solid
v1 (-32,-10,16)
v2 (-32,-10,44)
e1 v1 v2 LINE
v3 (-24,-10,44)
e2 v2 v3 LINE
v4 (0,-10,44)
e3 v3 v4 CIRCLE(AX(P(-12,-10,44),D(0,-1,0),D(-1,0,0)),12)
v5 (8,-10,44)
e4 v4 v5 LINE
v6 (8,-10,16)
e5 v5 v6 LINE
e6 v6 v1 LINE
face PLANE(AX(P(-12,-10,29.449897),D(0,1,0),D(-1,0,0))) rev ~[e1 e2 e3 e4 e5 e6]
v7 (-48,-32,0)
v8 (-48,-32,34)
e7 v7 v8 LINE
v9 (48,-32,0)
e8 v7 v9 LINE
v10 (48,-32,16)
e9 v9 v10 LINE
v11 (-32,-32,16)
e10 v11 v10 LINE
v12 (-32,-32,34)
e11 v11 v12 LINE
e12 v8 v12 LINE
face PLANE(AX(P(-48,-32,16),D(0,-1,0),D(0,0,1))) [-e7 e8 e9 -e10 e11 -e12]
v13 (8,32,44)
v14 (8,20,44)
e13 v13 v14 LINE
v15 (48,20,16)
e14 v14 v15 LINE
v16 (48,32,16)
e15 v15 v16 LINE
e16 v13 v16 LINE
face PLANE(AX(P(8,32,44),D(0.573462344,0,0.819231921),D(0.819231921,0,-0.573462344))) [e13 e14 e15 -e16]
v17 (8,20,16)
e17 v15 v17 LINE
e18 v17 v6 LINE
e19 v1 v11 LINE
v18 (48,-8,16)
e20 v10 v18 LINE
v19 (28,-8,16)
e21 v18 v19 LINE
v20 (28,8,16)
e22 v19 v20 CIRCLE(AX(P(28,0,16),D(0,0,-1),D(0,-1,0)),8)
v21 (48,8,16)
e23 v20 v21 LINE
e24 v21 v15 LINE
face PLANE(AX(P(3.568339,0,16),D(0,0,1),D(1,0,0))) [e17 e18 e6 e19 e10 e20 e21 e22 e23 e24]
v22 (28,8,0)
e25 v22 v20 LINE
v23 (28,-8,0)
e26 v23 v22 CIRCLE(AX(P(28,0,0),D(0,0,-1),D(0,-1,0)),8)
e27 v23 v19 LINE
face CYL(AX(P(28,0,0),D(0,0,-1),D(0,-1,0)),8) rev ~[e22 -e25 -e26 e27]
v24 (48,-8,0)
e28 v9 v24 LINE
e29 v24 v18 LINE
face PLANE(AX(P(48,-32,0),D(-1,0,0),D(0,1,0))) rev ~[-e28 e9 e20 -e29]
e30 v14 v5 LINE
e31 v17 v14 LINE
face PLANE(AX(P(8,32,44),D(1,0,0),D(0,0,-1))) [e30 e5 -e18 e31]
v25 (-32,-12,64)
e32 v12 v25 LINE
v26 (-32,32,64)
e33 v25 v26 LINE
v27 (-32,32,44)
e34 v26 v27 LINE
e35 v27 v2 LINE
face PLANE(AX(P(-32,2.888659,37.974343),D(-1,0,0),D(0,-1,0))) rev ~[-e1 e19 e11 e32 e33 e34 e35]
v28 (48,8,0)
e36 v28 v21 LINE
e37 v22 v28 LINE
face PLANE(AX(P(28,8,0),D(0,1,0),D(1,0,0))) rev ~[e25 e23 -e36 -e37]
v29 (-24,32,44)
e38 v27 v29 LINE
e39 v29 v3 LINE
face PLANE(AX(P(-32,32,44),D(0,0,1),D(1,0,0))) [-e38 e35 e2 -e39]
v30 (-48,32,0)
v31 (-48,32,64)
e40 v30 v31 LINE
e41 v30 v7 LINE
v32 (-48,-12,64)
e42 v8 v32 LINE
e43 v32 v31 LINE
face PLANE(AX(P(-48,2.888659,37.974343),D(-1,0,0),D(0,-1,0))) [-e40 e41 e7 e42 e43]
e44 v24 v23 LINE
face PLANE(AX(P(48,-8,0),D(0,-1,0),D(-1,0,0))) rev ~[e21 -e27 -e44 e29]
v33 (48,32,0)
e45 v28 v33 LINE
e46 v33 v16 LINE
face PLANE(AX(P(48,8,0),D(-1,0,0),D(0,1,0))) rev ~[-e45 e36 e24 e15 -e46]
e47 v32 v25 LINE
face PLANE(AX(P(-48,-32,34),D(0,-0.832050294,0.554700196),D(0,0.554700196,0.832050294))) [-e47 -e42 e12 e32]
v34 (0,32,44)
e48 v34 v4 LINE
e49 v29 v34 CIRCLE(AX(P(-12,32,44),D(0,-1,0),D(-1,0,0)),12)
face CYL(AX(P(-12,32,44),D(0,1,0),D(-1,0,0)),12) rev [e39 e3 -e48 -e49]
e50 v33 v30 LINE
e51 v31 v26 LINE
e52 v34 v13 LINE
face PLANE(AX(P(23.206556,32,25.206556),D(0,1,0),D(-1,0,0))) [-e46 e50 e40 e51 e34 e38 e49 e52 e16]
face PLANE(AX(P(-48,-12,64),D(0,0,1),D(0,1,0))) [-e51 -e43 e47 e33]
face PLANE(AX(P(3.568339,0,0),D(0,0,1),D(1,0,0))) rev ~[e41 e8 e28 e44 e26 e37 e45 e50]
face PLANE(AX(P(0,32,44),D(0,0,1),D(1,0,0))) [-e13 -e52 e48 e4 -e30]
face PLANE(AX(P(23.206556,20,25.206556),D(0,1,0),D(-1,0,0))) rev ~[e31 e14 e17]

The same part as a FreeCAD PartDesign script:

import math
import FreeCAD as App
import Part
import Sketcher

V = App.Vector
Q = App.Units.Quantity


def add_polygon(sketch, points):
    """Adds a closed chain of lines whose ends are joined by coincident constraints."""
    first, n = sketch.GeometryCount, len(points)
    for a, b in zip(points, points[1:] + points[:1]):
        sketch.addGeometry(Part.LineSegment(App.Vector(*a, 0), App.Vector(*b, 0)), False)
    for i in range(n):
        sketch.addConstraint(Sketcher.Constraint("Coincident", first + i, 2, first + (i + 1) % n, 1))

doc = App.newDocument("Part")
body = doc.addObject("PartDesign::Body", "Body")

sketch1 = doc.addObject("Sketcher::SketchObject", "Sketch")
body.addObject(sketch1)
sketch1.AttachmentSupport = (doc.XY_Plane, [""])
sketch1.MapMode = "FlatFace"
sketch1.addGeometry([
    Part.LineSegment(V(-48, 32, 0), V(-48, -32, 0)),
    Part.LineSegment(V(-48, -32, 0), V(48, -32, 0)),
    Part.LineSegment(V(48, -32, 0), V(48, -8, 0)),
    Part.LineSegment(V(48, -8, 0), V(28, -8, 0)),
    Part.ArcOfCircle(Part.Circle(V(28, 0, 0), V(0, 0, 1), 8), math.radians(90), math.radians(270)),
    Part.LineSegment(V(28, 8, 0), V(48, 8, 0)),
    Part.LineSegment(V(48, 8, 0), V(48, 32, 0)),
    Part.LineSegment(V(48, 32, 0), V(-48, 32, 0)),
], False)
sketch1.addConstraint([
    Sketcher.Constraint("Coincident", 0, 2, 1, 1),
    Sketcher.Constraint("Coincident", 1, 2, 2, 1),
    Sketcher.Constraint("Coincident", 2, 2, 3, 1),
    Sketcher.Constraint("Tangent", 3, 2, 4, 2),
    Sketcher.Constraint("Tangent", 4, 1, 5, 1),
    Sketcher.Constraint("Coincident", 5, 2, 6, 1),
    Sketcher.Constraint("Coincident", 6, 2, 7, 1),
    Sketcher.Constraint("Coincident", 7, 2, 0, 1),
    Sketcher.Constraint("Vertical", 0),
    Sketcher.Constraint("Horizontal", 1),
    Sketcher.Constraint("Vertical", 2),
    Sketcher.Constraint("Horizontal", 3),
    Sketcher.Constraint("Horizontal", 5),
    Sketcher.Constraint("Vertical", 6),
    Sketcher.Constraint("Horizontal", 7),
    Sketcher.Constraint("Symmetric", 0, 2, 6, 2, -1, 1),
    Sketcher.Constraint("Symmetric", 2, 2, 5, 2, -1),
    Sketcher.Constraint("Radius", 4, Q("8 mm")),
    Sketcher.Constraint("DistanceX", 1, 1, 1, 2, Q("96 mm")),
    Sketcher.Constraint("DistanceX", 3, 2, 3, 1, Q("20 mm")),
    Sketcher.Constraint("DistanceY", 0, 2, 0, 1, Q("64 mm")),
])
pad1 = doc.addObject("PartDesign::Pad", "Pad")
body.addObject(pad1)
pad1.Profile = sketch1
pad1.Length = 16

sketch2 = doc.addObject("Sketcher::SketchObject", "Sketch001")
body.addObject(sketch2)
sketch2.AttachmentSupport = (doc.YZ_Plane, [""])
sketch2.MapMode = "FlatFace"
sketch2.AttachmentOffset = App.Placement(V(0, 0, -48), App.Rotation())
add_polygon(sketch2, [(32, 64), (32, 16), (-32, 16), (-32, 34), (-12, 64)])
sketch2.addConstraint([
    Sketcher.Constraint("Vertical", 0),
    Sketcher.Constraint("Horizontal", 1),
    Sketcher.Constraint("Vertical", 2),
    Sketcher.Constraint("Horizontal", 4),
    Sketcher.Constraint("DistanceX", 1, 2, 1, 1, Q("64 mm")),
    Sketcher.Constraint("DistanceX", 4, 1, 4, 2, Q("44 mm")),
    Sketcher.Constraint("DistanceY", 0, 2, 0, 1, Q("48 mm")),
    Sketcher.Constraint("DistanceY", 2, 1, 2, 2, Q("18 mm")),
    Sketcher.Constraint("DistanceX", -1, 1, 0, 2, Q("32 mm")),
    Sketcher.Constraint("DistanceY", -1, 1, 0, 2, Q("16 mm")),
])
pad2 = doc.addObject("PartDesign::Pad", "Pad001")
body.addObject(pad2)
pad2.Profile = sketch2
pad2.Length = 16

sketch3 = doc.addObject("Sketcher::SketchObject", "Sketch002")
body.addObject(sketch3)
sketch3.AttachmentSupport = (doc.XZ_Plane, [""])
sketch3.MapMode = "FlatFace"
sketch3.AttachmentOffset = App.Placement(V(0, 0, -32), App.Rotation())
sketch3.addGeometry([
    Part.LineSegment(V(8, 16, 0), V(-32, 16, 0)),
    Part.LineSegment(V(-32, 16, 0), V(-32, 44, 0)),
    Part.LineSegment(V(-32, 44, 0), V(-24, 44, 0)),
    Part.ArcOfCircle(Part.Circle(V(-12, 44, 0), V(0, 0, 1), 12), math.radians(180), math.radians(360)),
    Part.LineSegment(V(0, 44, 0), V(8, 44, 0)),
    Part.LineSegment(V(8, 44, 0), V(8, 16, 0)),
], False)
sketch3.addConstraint([
    Sketcher.Constraint("Coincident", 0, 2, 1, 1),
    Sketcher.Constraint("Coincident", 1, 2, 2, 1),
    Sketcher.Constraint("Coincident", 2, 2, 3, 1),
    Sketcher.Constraint("Coincident", 3, 2, 4, 1),
    Sketcher.Constraint("Coincident", 4, 2, 5, 1),
    Sketcher.Constraint("Coincident", 5, 2, 0, 1),
    Sketcher.Constraint("Horizontal", 0),
    Sketcher.Constraint("Vertical", 1),
    Sketcher.Constraint("Horizontal", 2),
    Sketcher.Constraint("Horizontal", 4),
    Sketcher.Constraint("Vertical", 5),
    Sketcher.Constraint("PointOnObject", 3, 2, -2),
    Sketcher.Constraint("Horizontal", 3, 3, 1, 2),
    Sketcher.Constraint("Horizontal", 2, 2, 3, 2),
    Sketcher.Constraint("Equal", 2, 4),
    Sketcher.Constraint("Radius", 3, Q("12 mm")),
    Sketcher.Constraint("DistanceX", 0, 2, 0, 1, Q("40 mm")),
    Sketcher.Constraint("DistanceY", 1, 1, 1, 2, Q("28 mm")),
    Sketcher.Constraint("DistanceY", -1, 1, 3, 3, Q("44 mm")),
])
pad3 = doc.addObject("PartDesign::Pad", "Pad002")
body.addObject(pad3)
pad3.Profile = sketch3
pad3.Length = 42

sketch4 = doc.addObject("Sketcher::SketchObject", "Sketch003")
body.addObject(sketch4)
sketch4.AttachmentSupport = (doc.XZ_Plane, [""])
sketch4.MapMode = "FlatFace"
sketch4.AttachmentOffset = App.Placement(V(0, 0, -32), App.Rotation())
add_polygon(sketch4, [(8, 44), (48, 16), (8, 16)])
sketch4.addConstraint([
    Sketcher.Constraint("Horizontal", 1),
    Sketcher.Constraint("Vertical", 2),
    Sketcher.Constraint("DistanceX", 1, 2, 1, 1, Q("40 mm")),
    Sketcher.Constraint("DistanceY", 2, 1, 2, 2, Q("28 mm")),
    Sketcher.Constraint("DistanceX", -1, 1, 0, 2, Q("48 mm")),
    Sketcher.Constraint("DistanceY", -1, 1, 0, 2, Q("16 mm")),
])
pad4 = doc.addObject("PartDesign::Pad", "Pad003")
body.addObject(pad4)
pad4.Profile = sketch4
pad4.Length = 12

doc.recompute()
